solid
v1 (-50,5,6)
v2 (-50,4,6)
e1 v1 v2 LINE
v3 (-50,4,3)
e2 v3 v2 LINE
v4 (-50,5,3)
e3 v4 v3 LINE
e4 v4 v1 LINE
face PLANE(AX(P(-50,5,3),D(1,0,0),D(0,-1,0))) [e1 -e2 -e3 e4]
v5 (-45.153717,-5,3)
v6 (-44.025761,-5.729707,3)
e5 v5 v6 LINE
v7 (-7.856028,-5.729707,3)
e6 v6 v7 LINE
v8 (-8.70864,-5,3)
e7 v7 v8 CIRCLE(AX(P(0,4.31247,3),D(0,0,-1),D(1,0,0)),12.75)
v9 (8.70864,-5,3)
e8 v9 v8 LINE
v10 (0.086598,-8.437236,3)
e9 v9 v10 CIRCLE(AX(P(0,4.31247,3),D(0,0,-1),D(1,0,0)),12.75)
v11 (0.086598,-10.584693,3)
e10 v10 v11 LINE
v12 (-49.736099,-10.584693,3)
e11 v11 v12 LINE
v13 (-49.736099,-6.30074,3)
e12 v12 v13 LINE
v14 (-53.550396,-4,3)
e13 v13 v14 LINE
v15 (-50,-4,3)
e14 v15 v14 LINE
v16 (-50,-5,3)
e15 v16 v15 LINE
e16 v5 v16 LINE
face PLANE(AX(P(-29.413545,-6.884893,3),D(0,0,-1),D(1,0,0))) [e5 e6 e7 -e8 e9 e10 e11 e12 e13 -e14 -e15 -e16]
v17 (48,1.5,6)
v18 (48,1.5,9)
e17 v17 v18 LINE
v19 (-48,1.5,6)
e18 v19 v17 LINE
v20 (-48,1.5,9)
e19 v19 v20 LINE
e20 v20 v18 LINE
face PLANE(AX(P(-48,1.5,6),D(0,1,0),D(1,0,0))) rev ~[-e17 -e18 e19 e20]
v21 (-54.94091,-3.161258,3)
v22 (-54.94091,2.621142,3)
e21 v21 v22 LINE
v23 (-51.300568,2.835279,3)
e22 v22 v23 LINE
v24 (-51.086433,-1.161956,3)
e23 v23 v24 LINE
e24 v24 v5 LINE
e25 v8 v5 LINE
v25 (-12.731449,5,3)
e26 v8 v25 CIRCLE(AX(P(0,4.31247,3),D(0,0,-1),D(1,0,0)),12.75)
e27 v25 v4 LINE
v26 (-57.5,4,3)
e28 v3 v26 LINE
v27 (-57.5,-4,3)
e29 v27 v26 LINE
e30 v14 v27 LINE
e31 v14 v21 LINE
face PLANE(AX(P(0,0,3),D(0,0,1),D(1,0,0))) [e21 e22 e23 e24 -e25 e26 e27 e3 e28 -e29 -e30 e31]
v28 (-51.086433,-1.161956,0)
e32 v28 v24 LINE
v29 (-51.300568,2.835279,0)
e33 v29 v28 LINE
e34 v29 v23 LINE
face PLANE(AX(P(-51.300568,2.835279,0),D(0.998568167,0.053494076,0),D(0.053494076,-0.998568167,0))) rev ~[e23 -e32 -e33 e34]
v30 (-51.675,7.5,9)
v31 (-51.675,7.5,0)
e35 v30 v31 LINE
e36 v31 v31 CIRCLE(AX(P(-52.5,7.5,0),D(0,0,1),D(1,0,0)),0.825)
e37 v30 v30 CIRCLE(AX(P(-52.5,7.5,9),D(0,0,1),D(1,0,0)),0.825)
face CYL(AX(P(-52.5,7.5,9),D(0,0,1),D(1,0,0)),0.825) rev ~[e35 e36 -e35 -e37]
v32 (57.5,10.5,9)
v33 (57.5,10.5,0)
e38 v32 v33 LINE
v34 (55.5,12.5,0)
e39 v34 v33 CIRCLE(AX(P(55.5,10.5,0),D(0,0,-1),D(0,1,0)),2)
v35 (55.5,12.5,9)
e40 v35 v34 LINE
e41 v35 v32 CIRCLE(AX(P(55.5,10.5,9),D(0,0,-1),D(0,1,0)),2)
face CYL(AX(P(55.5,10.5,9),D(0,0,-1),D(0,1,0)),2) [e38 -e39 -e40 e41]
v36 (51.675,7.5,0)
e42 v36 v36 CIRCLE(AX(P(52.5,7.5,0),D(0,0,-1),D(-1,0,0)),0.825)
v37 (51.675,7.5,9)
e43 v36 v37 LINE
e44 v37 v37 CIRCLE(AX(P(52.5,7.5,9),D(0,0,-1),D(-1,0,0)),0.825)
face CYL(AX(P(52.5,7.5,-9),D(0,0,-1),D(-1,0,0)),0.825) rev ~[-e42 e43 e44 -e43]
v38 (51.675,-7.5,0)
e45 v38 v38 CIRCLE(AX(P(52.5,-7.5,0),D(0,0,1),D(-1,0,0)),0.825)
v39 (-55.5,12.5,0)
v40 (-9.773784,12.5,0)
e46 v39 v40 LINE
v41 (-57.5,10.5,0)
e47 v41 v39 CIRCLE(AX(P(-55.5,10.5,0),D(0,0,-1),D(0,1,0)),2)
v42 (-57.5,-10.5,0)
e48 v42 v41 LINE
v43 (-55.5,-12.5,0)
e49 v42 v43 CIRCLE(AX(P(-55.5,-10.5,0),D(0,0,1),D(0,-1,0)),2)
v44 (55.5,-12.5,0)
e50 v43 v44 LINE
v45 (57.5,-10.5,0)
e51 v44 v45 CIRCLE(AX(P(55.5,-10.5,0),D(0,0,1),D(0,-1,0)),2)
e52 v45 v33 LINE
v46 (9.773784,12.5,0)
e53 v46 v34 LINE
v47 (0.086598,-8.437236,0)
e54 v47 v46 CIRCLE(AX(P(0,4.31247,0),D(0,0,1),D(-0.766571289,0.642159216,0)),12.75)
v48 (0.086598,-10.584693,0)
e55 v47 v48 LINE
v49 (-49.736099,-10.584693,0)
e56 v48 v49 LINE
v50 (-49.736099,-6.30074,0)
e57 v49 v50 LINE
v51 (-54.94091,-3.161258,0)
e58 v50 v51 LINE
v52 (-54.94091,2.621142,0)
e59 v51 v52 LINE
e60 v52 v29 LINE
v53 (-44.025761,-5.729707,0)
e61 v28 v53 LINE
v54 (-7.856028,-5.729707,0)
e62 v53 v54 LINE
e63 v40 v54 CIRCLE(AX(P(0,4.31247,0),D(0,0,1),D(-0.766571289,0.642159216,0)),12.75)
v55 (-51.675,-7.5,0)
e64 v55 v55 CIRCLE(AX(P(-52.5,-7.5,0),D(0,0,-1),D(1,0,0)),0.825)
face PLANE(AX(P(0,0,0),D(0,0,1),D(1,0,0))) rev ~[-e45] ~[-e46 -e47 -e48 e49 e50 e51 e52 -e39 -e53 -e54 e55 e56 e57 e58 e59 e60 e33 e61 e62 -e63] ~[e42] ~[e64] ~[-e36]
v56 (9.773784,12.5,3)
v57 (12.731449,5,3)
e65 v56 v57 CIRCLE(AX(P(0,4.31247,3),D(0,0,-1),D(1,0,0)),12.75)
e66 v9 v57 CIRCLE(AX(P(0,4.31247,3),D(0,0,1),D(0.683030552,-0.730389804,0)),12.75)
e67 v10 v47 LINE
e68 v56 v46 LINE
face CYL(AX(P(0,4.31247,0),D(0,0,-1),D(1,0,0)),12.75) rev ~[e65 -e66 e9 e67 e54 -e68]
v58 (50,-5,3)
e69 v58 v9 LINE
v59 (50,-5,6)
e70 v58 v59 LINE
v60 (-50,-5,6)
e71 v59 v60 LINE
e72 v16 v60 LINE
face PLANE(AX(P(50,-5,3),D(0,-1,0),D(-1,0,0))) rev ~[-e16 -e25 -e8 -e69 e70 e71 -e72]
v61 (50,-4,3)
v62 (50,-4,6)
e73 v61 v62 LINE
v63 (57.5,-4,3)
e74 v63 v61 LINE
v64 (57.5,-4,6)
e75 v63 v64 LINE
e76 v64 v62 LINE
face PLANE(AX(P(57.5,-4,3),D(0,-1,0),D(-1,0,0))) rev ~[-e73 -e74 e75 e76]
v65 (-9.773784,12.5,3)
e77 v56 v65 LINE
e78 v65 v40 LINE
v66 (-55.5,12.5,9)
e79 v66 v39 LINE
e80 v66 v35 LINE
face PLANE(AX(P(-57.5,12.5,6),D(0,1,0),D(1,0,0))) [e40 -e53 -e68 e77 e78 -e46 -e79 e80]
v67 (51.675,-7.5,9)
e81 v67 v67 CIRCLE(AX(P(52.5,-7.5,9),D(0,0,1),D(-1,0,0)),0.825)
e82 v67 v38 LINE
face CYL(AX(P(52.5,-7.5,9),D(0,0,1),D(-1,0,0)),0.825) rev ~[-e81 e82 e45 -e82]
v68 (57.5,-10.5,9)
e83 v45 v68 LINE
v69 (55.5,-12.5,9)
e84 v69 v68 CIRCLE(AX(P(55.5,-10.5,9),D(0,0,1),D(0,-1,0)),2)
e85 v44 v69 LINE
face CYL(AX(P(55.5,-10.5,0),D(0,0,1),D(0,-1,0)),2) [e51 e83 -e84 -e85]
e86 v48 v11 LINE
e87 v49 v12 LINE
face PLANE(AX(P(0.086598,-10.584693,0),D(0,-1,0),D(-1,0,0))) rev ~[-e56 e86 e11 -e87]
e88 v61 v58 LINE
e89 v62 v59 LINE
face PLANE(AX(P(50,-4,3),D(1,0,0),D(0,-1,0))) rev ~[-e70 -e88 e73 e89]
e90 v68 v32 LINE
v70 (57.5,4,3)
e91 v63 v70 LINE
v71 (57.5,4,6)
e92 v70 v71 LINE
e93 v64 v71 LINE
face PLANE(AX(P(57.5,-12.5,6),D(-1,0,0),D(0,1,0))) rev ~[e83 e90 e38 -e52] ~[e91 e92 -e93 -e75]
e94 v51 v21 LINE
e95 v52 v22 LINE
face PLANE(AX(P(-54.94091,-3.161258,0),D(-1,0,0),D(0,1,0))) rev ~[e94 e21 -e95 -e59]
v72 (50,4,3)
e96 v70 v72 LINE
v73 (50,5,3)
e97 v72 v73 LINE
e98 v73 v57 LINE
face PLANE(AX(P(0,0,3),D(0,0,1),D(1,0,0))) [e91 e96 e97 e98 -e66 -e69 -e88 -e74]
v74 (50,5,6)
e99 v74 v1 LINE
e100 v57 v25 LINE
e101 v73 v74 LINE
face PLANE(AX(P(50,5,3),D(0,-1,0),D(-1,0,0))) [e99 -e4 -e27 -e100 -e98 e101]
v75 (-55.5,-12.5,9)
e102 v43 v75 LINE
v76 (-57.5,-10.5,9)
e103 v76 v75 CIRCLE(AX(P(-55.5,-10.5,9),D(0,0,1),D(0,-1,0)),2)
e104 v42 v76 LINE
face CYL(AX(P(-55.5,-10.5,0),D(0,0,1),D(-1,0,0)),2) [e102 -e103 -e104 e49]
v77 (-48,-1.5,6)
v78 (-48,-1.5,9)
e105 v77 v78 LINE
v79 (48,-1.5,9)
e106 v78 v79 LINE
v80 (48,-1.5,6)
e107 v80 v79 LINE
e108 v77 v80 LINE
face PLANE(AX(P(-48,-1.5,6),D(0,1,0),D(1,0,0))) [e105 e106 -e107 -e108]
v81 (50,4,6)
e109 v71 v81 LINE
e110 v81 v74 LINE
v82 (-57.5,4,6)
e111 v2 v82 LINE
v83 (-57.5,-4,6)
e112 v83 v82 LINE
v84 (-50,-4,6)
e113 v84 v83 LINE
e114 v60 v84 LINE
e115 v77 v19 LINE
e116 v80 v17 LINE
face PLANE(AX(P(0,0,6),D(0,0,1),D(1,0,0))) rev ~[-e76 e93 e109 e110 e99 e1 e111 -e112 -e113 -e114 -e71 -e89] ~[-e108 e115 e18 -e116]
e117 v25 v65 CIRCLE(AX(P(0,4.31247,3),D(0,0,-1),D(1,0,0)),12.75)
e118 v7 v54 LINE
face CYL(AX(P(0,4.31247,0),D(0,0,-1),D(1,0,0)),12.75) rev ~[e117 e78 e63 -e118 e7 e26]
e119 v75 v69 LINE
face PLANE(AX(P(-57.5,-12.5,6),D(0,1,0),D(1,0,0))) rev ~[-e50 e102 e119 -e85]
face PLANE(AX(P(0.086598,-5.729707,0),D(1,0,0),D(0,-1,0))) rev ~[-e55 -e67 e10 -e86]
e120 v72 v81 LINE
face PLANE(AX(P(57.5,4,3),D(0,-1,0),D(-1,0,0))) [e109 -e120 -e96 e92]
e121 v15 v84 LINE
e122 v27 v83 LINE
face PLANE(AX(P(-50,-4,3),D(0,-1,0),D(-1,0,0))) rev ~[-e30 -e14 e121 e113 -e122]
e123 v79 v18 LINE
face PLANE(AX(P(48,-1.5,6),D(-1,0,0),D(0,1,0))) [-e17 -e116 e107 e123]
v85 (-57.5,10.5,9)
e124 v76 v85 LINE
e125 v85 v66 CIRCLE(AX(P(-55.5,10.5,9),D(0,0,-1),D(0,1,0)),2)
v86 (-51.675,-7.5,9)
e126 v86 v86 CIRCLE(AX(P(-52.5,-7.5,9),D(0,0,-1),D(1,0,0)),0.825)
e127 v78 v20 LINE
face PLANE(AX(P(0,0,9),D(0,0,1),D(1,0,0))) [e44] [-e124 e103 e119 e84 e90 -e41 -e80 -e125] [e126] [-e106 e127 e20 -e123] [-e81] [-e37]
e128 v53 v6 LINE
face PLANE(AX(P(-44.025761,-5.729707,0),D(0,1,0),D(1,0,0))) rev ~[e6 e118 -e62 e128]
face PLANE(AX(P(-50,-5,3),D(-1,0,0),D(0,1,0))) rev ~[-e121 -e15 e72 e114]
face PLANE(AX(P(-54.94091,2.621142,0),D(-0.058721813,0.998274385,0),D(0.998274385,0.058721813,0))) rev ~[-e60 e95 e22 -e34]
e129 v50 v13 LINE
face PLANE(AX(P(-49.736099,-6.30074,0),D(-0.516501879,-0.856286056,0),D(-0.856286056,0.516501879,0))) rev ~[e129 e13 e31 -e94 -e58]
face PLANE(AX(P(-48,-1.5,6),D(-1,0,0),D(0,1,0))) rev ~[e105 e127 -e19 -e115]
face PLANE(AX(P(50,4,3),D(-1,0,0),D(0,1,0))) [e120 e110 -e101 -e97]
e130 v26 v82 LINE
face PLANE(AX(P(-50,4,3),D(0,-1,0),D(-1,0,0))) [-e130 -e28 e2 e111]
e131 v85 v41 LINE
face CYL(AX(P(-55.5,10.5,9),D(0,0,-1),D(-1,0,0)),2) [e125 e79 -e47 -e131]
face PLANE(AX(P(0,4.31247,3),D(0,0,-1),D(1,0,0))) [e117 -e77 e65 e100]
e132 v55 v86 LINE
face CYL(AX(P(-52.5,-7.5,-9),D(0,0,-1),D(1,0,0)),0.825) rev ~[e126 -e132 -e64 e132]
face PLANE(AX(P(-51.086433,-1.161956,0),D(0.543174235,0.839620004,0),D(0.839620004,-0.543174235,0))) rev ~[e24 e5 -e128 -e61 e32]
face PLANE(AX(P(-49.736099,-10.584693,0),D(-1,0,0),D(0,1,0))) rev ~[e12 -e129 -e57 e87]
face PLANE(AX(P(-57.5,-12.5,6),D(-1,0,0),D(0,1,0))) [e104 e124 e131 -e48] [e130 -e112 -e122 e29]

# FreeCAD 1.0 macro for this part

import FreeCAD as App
import Part
import Sketcher

V = App.Vector
Q = App.Units.Quantity


def edges_at(feature, points):
    """Names of the edges that pass closest to the given points."""
    edges = feature.Shape.Edges
    near = lambda p: min(range(len(edges)), key=lambda i: edges[i].distToShape(Part.Vertex(*p))[0])
    return sorted({f"Edge{near(p) + 1}" for p in points})


def add_polygon(sketch, points):
    """Adds a closed chain of lines whose ends are joined by coincident constraints."""
    first, n = sketch.GeometryCount, len(points)
    for a, b in zip(points, points[1:] + points[:1]):
        sketch.addGeometry(Part.LineSegment(App.Vector(*a, 0), App.Vector(*b, 0)), False)
    for i in range(n):
        sketch.addConstraint(Sketcher.Constraint("Coincident", first + i, 2, first + (i + 1) % n, 1))

doc = App.newDocument("Part")
body = doc.addObject("PartDesign::Body", "Body")

sketch1 = body.newObject("Sketcher::SketchObject", "Sketch")
sketch1.AttachmentSupport = (doc.getObject("XY_Plane"), [""])
sketch1.MapMode = "FlatFace"
add_polygon(sketch1, [(-57.5, 12.5), (-57.5, -12.5), (57.5, -12.5), (57.5, 12.5)])
sketch1.addConstraint(Sketcher.Constraint("Vertical", 0))
sketch1.addConstraint(Sketcher.Constraint("Horizontal", 1))
sketch1.addConstraint(Sketcher.Constraint("Vertical", 2))
sketch1.addConstraint(Sketcher.Constraint("Horizontal", 3))
sketch1.addConstraint(Sketcher.Constraint("Symmetric", 0, 2, 2, 2, -1, 1))
sketch1.addConstraint(Sketcher.Constraint("DistanceX", 1, 1, 1, 2, 115.0))
sketch1.addConstraint(Sketcher.Constraint("DistanceY", 0, 2, 0, 1, 25.0))
pad1 = body.newObject("PartDesign::Pad", "Pad")
pad1.Profile = sketch1
pad1.Length = 3

sketch2 = body.newObject("Sketcher::SketchObject", "Sketch001")
sketch2.AttachmentSupport = (doc.getObject("XY_Plane"), [""])
sketch2.MapMode = "FlatFace"
sketch2.AttachmentOffset = App.Placement(V(0, 0, 3), App.Rotation())
add_polygon(sketch2, [(57.5, 12.5), (-57.5, 12.5), (-57.5, 4), (-50, 4), (-50, 5), (50, 5), (50, 4), (57.5, 4)])
add_polygon(sketch2, [(-57.5, -12.5), (57.5, -12.5), (57.5, -4), (50, -4), (50, -5), (-50, -5), (-50, -4), (-57.5, -4)])
sketch2.addConstraint(Sketcher.Constraint("Horizontal", 0))
sketch2.addConstraint(Sketcher.Constraint("Vertical", 1))
sketch2.addConstraint(Sketcher.Constraint("Horizontal", 2))
sketch2.addConstraint(Sketcher.Constraint("Vertical", 3))
sketch2.addConstraint(Sketcher.Constraint("Horizontal", 4))
sketch2.addConstraint(Sketcher.Constraint("Vertical", 5))
sketch2.addConstraint(Sketcher.Constraint("Horizontal", 6))
sketch2.addConstraint(Sketcher.Constraint("Vertical", 7))
sketch2.addConstraint(Sketcher.Constraint("Horizontal", 8))
sketch2.addConstraint(Sketcher.Constraint("Vertical", 9))
sketch2.addConstraint(Sketcher.Constraint("Horizontal", 10))
sketch2.addConstraint(Sketcher.Constraint("Vertical", 11))
sketch2.addConstraint(Sketcher.Constraint("Horizontal", 12))
sketch2.addConstraint(Sketcher.Constraint("Vertical", 13))
sketch2.addConstraint(Sketcher.Constraint("Horizontal", 14))
sketch2.addConstraint(Sketcher.Constraint("Vertical", 15))
sketch2.addConstraint(Sketcher.Constraint("Symmetric", 0, 2, 8, 2, -1, 1))
sketch2.addConstraint(Sketcher.Constraint("Symmetric", 2, 2, 10, 2, -1, 1))
sketch2.addConstraint(Sketcher.Constraint("Symmetric", 4, 2, 12, 2, -1, 1))
sketch2.addConstraint(Sketcher.Constraint("Symmetric", 6, 2, 14, 2, -1, 1))
sketch2.addConstraint(Sketcher.Constraint("Symmetric", 2, 2, 5, 2, -2))
sketch2.addConstraint(Sketcher.Constraint("Vertical", 7, 2, 8, 2))
sketch2.addConstraint(Sketcher.Constraint("DistanceX", 0, 2, 0, 1, 115.0))
sketch2.addConstraint(Sketcher.Constraint("DistanceX", 4, 1, 4, 2, 100.0))
sketch2.addConstraint(Sketcher.Constraint("DistanceY", 3, 1, 3, 2, 1.0))
sketch2.addConstraint(Sketcher.Constraint("DistanceY", 1, 2, 1, 1, 8.5))
sketch2.addConstraint(Sketcher.Constraint("DistanceY", -1, 1, 1, 2, 4.0))
pad2 = body.newObject("PartDesign::Pad", "Pad001")
pad2.Profile = sketch2
pad2.Length = 3

sketch3 = body.newObject("Sketcher::SketchObject", "Sketch002")
sketch3.AttachmentSupport = (doc.getObject("XY_Plane"), [""])
sketch3.MapMode = "FlatFace"
sketch3.AttachmentOffset = App.Placement(V(0, 0, 6), App.Rotation())
add_polygon(sketch3, [(-57.5, 12.5), (-57.5, -12.5), (57.5, -12.5), (57.5, 12.5)])
add_polygon(sketch3, [(48, -1.5), (-48, -1.5), (-48, 1.5), (48, 1.5)])
sketch3.addConstraint(Sketcher.Constraint("Vertical", 0))
sketch3.addConstraint(Sketcher.Constraint("Horizontal", 1))
sketch3.addConstraint(Sketcher.Constraint("Vertical", 2))
sketch3.addConstraint(Sketcher.Constraint("Horizontal", 3))
sketch3.addConstraint(Sketcher.Constraint("Horizontal", 4))
sketch3.addConstraint(Sketcher.Constraint("Vertical", 5))
sketch3.addConstraint(Sketcher.Constraint("Horizontal", 6))
sketch3.addConstraint(Sketcher.Constraint("Vertical", 7))
sketch3.addConstraint(Sketcher.Constraint("Symmetric", 0, 2, 2, 2, -1, 1))
sketch3.addConstraint(Sketcher.Constraint("Symmetric", 4, 2, 6, 2, -1, 1))
sketch3.addConstraint(Sketcher.Constraint("DistanceX", 1, 1, 1, 2, 115.0))
sketch3.addConstraint(Sketcher.Constraint("DistanceX", 4, 2, 4, 1, 96.0))
sketch3.addConstraint(Sketcher.Constraint("DistanceY", 0, 2, 0, 1, 25.0))
sketch3.addConstraint(Sketcher.Constraint("DistanceY", 5, 1, 5, 2, 3.0))
pad3 = body.newObject("PartDesign::Pad", "Pad002")
pad3.Profile = sketch3
pad3.Length = 3

sketch4 = body.newObject("Sketcher::SketchObject", "Sketch003")
sketch4.AttachmentSupport = (doc.getObject("XY_Plane"), [""])
sketch4.MapMode = "FlatFace"
sketch4.AttachmentOffset = App.Placement(V(0, 0, 9), App.Rotation())
sketch4.addGeometry(Part.Circle(V(-52.5, 7.5, 0), V(0, 0, 1), 0.825), False)
sketch4.addConstraint(Sketcher.Constraint("Diameter", 0, 1.65))
sketch4.addConstraint(Sketcher.Constraint("DistanceX", 0, 3, -1, 1, 52.5))
sketch4.addConstraint(Sketcher.Constraint("DistanceY", -1, 1, 0, 3, 7.5))
pocket1 = body.newObject("PartDesign::Pocket", "Pocket")
pocket1.Profile = sketch4
pocket1.Type = "ThroughAll"
doc.recompute()

polarpattern = body.newObject("PartDesign::PolarPattern", "PolarPattern")
polarpattern.Originals = [pocket1]
polarpattern.Axis = (doc.getObject("Y_Axis"), [""])
polarpattern.Angle = 360
polarpattern.Occurrences = 2
body.Tip = polarpattern
doc.recompute()

polarpattern2 = body.newObject("PartDesign::PolarPattern", "PolarPattern001")
polarpattern2.Originals = [pocket1]
polarpattern2.Axis = (doc.getObject("X_Axis"), [""])
polarpattern2.Angle = 360
polarpattern2.Occurrences = 2
body.Tip = polarpattern2
doc.recompute()

polarpattern3 = body.newObject("PartDesign::PolarPattern", "PolarPattern002")
polarpattern3.Originals = [pocket1]
polarpattern3.Axis = (doc.getObject("Z_Axis"), [""])
polarpattern3.Angle = 360
polarpattern3.Occurrences = 2
body.Tip = polarpattern3
doc.recompute()

fillet = body.newObject("PartDesign::Fillet", "Fillet")
fillet.Base = (polarpattern3, edges_at(polarpattern3, [
    (57.5, 12.5, 4.5),
    (57.5, 12.5, 4.5),
    (57.5, 12.5, 4.5),
    (57.5, -12.5, 4.5),
    (-57.5, 12.5, 4.5),
    (-57.5, -12.5, 4.5),
]))
fillet.Radius = 2

sketch5 = body.newObject("Sketcher::SketchObject", "Sketch004")
sketch5.AttachmentSupport = (doc.getObject("XY_Plane"), [""])
sketch5.MapMode = "FlatFace"
sketch5.addGeometry(Part.Circle(V(0, 4.31247, 0), V(0, 0, 1), 12.75), False)
sketch5.addConstraint(Sketcher.Constraint("PointOnObject", 0, 3, -2))
sketch5.addConstraint(Sketcher.Constraint("Diameter", 0, 25.5))
sketch5.addConstraint(Sketcher.Constraint("DistanceY", -1, 1, 0, 3, 4.31247))
pocket2 = body.newObject("PartDesign::Pocket", "Pocket001")
pocket2.Profile = sketch5
pocket2.Length = 3
pocket2.Reversed = True

sketch6 = body.newObject("Sketcher::SketchObject", "Sketch005")
sketch6.AttachmentSupport = (doc.getObject("XY_Plane"), [""])
sketch6.MapMode = "FlatFace"
add_polygon(sketch6, [(0.086598, -10.584693), (-49.736099, -10.584693), (-49.736099, -6.30074), (-54.94091, -3.161258), (-54.94091, 2.621142), (-51.300568, 2.835279), (-51.086433, -1.161956), (-44.025761, -5.729707), (0.086598, -5.729707)])
sketch6.addConstraint(Sketcher.Constraint("Horizontal", 0))
sketch6.addConstraint(Sketcher.Constraint("Vertical", 1))
sketch6.addConstraint(Sketcher.Constraint("Vertical", 3))
sketch6.addConstraint(Sketcher.Constraint("Horizontal", 7))
sketch6.addConstraint(Sketcher.Constraint("Vertical", 8))
sketch6.addConstraint(Sketcher.Constraint("Angle", 6, Q("-32.899985 deg")))
sketch6.addConstraint(Sketcher.Constraint("DistanceY", 3, 1, 3, 2, 5.7824))
sketch6.addConstraint(Sketcher.Constraint("DistanceX", 7, 1, 7, 2, 44.112359))
sketch6.addConstraint(Sketcher.Constraint("DistanceX", 0, 2, -1, 1, 49.736099))
sketch6.addConstraint(Sketcher.Constraint("DistanceX", 0, 2, 0, 1, 49.822697))
sketch6.addConstraint(Sketcher.Constraint("DistanceY", 1, 1, 1, 2, 4.283953))
sketch6.addConstraint(Sketcher.Constraint("DistanceY", 8, 2, 8, 1, 4.854986))
sketch6.addConstraint(Sketcher.Constraint("DistanceY", 1, 2, -1, 1, 6.30074))
sketch6.addConstraint(Sketcher.Constraint("DistanceX", 2, 2, -1, 1, 54.94091))
sketch6.addConstraint(Sketcher.Constraint("DistanceY", 2, 2, -1, 1, 3.161258))
sketch6.addConstraint(Sketcher.Constraint("DistanceY", -1, 1, 4, 2, 2.835279))
sketch6.addConstraint(Sketcher.Constraint("DistanceX", 4, 2, 1, 2, 1.564469))
sketch6.addConstraint(Sketcher.Constraint("DistanceX", 5, 2, 6, 2, 7.060672))
pocket3 = body.newObject("PartDesign::Pocket", "Pocket002")
pocket3.Profile = sketch6
pocket3.Length = 3
pocket3.Reversed = True

doc.recompute()
